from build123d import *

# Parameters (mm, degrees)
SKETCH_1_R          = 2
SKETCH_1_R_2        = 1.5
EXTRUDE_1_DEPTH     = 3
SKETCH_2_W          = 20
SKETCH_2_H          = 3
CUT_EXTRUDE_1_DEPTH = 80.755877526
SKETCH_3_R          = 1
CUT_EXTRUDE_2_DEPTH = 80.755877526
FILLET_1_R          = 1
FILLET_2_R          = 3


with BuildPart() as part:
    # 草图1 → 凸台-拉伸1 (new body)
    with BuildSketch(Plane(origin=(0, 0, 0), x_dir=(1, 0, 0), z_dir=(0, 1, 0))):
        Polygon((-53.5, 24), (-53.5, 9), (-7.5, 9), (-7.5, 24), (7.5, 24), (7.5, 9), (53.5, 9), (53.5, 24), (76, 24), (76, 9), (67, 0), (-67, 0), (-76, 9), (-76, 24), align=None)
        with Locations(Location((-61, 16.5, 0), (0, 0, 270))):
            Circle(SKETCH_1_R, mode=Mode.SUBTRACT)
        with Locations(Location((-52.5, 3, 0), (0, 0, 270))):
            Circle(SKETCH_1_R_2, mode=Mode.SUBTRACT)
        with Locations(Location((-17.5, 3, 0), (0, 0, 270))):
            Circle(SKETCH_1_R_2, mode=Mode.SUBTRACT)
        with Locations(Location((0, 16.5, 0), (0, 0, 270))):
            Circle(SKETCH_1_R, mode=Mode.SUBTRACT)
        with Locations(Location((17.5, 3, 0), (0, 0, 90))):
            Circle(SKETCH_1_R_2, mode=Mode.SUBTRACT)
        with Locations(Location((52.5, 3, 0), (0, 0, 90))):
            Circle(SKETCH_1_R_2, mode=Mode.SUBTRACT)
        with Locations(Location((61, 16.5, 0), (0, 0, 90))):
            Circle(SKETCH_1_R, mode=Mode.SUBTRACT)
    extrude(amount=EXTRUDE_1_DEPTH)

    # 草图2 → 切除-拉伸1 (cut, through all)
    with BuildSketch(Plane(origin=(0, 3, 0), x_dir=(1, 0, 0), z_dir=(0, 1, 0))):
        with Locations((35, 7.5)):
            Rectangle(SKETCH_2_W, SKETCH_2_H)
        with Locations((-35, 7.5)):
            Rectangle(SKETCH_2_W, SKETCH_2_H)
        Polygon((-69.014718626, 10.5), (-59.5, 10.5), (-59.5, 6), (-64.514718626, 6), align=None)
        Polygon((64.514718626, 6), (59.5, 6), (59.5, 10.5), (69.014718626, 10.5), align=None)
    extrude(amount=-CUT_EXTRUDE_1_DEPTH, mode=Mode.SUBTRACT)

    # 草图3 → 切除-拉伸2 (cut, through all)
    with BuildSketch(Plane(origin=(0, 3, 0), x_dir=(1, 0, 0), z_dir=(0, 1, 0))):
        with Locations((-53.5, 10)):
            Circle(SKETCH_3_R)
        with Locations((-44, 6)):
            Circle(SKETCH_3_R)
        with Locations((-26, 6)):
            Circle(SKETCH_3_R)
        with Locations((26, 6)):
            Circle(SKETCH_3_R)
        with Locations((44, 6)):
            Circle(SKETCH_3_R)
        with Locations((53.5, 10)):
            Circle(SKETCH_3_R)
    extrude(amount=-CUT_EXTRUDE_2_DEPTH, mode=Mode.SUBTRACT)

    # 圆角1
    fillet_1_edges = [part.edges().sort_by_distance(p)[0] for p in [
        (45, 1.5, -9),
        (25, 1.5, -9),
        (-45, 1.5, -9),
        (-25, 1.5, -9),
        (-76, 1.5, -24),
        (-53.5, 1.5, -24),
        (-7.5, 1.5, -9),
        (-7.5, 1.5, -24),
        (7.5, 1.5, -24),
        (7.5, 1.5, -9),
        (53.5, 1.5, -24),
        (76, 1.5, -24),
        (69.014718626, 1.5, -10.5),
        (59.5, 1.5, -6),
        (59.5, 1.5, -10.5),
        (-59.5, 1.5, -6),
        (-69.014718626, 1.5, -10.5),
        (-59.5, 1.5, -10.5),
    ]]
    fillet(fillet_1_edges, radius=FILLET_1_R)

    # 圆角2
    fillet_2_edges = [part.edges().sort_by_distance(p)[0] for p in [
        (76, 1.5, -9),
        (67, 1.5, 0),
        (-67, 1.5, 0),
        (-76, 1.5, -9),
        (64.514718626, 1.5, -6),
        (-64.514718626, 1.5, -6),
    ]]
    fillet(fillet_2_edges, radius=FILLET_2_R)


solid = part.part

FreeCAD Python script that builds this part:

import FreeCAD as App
import Part
import Sketcher

V = App.Vector
Q = App.Units.Quantity


def edges_at(feature, points):
    """Names of the edges that pass closest to the given points."""
    edges = feature.Shape.Edges
    near = lambda p: min(range(len(edges)), key=lambda i: edges[i].distToShape(Part.Vertex(*p))[0])
    return sorted({f"Edge{near(p) + 1}" for p in points})

doc = App.newDocument("Part")
body = doc.addObject("PartDesign::Body", "Body")

# Sketch on XZ plane
sketch1 = doc.addObject("Sketcher::SketchObject", "Sketch")
body.addObject(sketch1)
sketch1.AttachmentSupport = (doc.XZ_Plane, [""])
sketch1.MapMode = "FlatFace"
sketch1.addGeometry([
    Part.LineSegment(V(-53.5, -9, 0), V(-53.5, -24, 0)),  # 0
    Part.LineSegment(V(-53.5, -24, 0), V(-76, -24, 0)),  # 1
    Part.LineSegment(V(-76, -24, 0), V(-76, -9, 0)),  # 2
    Part.LineSegment(V(-76, -9, 0), V(-67, 0, 0)),  # 3
    Part.LineSegment(V(-67, 0, 0), V(67, 0, 0)),  # 4
    Part.LineSegment(V(67, 0, 0), V(76, -9, 0)),  # 5
    Part.LineSegment(V(76, -9, 0), V(76, -24, 0)),  # 6
    Part.LineSegment(V(76, -24, 0), V(53.5, -24, 0)),  # 7
    Part.LineSegment(V(53.5, -24, 0), V(53.5, -9, 0)),  # 8
    Part.LineSegment(V(53.5, -9, 0), V(7.5, -9, 0)),  # 9
    Part.LineSegment(V(7.5, -9, 0), V(7.5, -24, 0)),  # 10
    Part.LineSegment(V(7.5, -24, 0), V(-7.5, -24, 0)),  # 11
    Part.LineSegment(V(-7.5, -24, 0), V(-7.5, -9, 0)),  # 12
    Part.LineSegment(V(-7.5, -9, 0), V(-53.5, -9, 0)),  # 13
    Part.Circle(V(52.5, -3, 0), V(0, 0, 1), 1.5),  # 14
    Part.Circle(V(17.5, -3, 0), V(0, 0, 1), 1.5),  # 15
    Part.Circle(V(-17.5, -3, 0), V(0, 0, 1), 1.5),  # 16
    Part.Circle(V(-52.5, -3, 0), V(0, 0, 1), 1.5),  # 17
    Part.Circle(V(61, -16.5, 0), V(0, 0, 1), 2),  # 18
    Part.Circle(V(0, -16.5, 0), V(0, 0, 1), 2),  # 19
    Part.Circle(V(-61, -16.5, 0), V(0, 0, 1), 2),  # 20
], False)
sketch1.addConstraint([
    Sketcher.Constraint("Coincident", 0, 2, 1, 1),
    Sketcher.Constraint("Coincident", 1, 2, 2, 1),
    Sketcher.Constraint("Coincident", 2, 2, 3, 1),
    Sketcher.Constraint("Coincident", 3, 2, 4, 1),
    Sketcher.Constraint("Coincident", 4, 2, 5, 1),
    Sketcher.Constraint("Coincident", 5, 2, 6, 1),
    Sketcher.Constraint("Coincident", 6, 2, 7, 1),
    Sketcher.Constraint("Coincident", 7, 2, 8, 1),
    Sketcher.Constraint("Coincident", 8, 2, 9, 1),
    Sketcher.Constraint("Coincident", 9, 2, 10, 1),
    Sketcher.Constraint("Coincident", 10, 2, 11, 1),
    Sketcher.Constraint("Coincident", 11, 2, 12, 1),
    Sketcher.Constraint("Coincident", 12, 2, 13, 1),
    Sketcher.Constraint("Coincident", 13, 2, 0, 1),
    Sketcher.Constraint("Vertical", 0),
    Sketcher.Constraint("Horizontal", 1),
    Sketcher.Constraint("Vertical", 2),
    Sketcher.Constraint("Horizontal", 4),
    Sketcher.Constraint("Vertical", 6),
    Sketcher.Constraint("Horizontal", 7),
    Sketcher.Constraint("Vertical", 8),
    Sketcher.Constraint("Horizontal", 9),
    Sketcher.Constraint("Vertical", 10),
    Sketcher.Constraint("Horizontal", 11),
    Sketcher.Constraint("Vertical", 12),
    Sketcher.Constraint("Horizontal", 13),
    Sketcher.Constraint("Equal", 14, 15),
    Sketcher.Constraint("Equal", 15, 16),
    Sketcher.Constraint("Equal", 16, 17),
    Sketcher.Constraint("Equal", 18, 19),
    Sketcher.Constraint("Equal", 19, 20),
    Sketcher.Constraint("Symmetric", 3, 2, 4, 2, -1, 1),
    Sketcher.Constraint("Symmetric", 15, 3, 16, 3, -2),
    Sketcher.Constraint("Symmetric", 14, 3, 17, 3, -2),
    Sketcher.Constraint("Symmetric", 18, 3, 20, 3, -2),
    Sketcher.Constraint("Symmetric", 2, 2, 5, 2, -2),
    Sketcher.Constraint("Symmetric", 0, 2, 7, 2, -2),
    Sketcher.Constraint("Symmetric", 9, 2, 12, 2, -2),
    Sketcher.Constraint("PointOnObject", 19, 3, -2),
    Sketcher.Constraint("Perpendicular", 3, 5),
    Sketcher.Constraint("Horizontal", 14, 3, 15, 3),
    Sketcher.Constraint("Horizontal", 18, 3, 19, 3),
    Sketcher.Constraint("Horizontal", 5, 2, 8, 2),
    Sketcher.Constraint("Horizontal", 7, 2, 10, 2),
    Sketcher.Constraint("Equal", 11, 0),
    Sketcher.Constraint("Diameter", 14, Q("3 mm")),
    Sketcher.Constraint("Diameter", 18, Q("4 mm")),
    Sketcher.Constraint("DistanceX", 4, 1, 4, 2, Q("134 mm")),
    Sketcher.Constraint("DistanceX", 9, 2, 9, 1, Q("46 mm")),
    Sketcher.Constraint("DistanceX", 11, 2, 11, 1, Q("15 mm")),
    Sketcher.Constraint("DistanceX", 1, 2, 1, 1, Q("22.5 mm")),
    Sketcher.Constraint("DistanceY", 14, 3, -1, 1, Q("3 mm")),
    Sketcher.Constraint("DistanceX", -1, 1, 18, 3, Q("61 mm")),
    Sketcher.Constraint("DistanceX", 15, 3, 14, 3, Q("35 mm")),
    Sketcher.Constraint("DistanceX", 16, 3, 15, 3, Q("35 mm")),
    Sketcher.Constraint("DistanceY", 18, 3, -1, 1, Q("16.5 mm")),
])
pad1 = doc.addObject("PartDesign::Pad", "Pad")
body.addObject(pad1)
pad1.Profile = sketch1
pad1.Length = 3
pad1.Reversed = True

# Sketch on XZ plane
sketch2 = doc.addObject("Sketcher::SketchObject", "Sketch001")
body.addObject(sketch2)
sketch2.AttachmentSupport = (doc.XZ_Plane, [""])
sketch2.MapMode = "FlatFace"
sketch2.AttachmentOffset = App.Placement(V(0, 0, -3), App.Rotation())
sketch2.addGeometry([
    Part.LineSegment(V(25, -9, 0), V(25, -6, 0)),  # 0
    Part.LineSegment(V(25, -6, 0), V(45, -6, 0)),  # 1
    Part.LineSegment(V(45, -6, 0), V(45, -9, 0)),  # 2
    Part.LineSegment(V(45, -9, 0), V(25, -9, 0)),  # 3
    Part.LineSegment(V(-45, -9, 0), V(-45, -6, 0)),  # 4
    Part.LineSegment(V(-45, -6, 0), V(-25, -6, 0)),  # 5
    Part.LineSegment(V(-25, -6, 0), V(-25, -9, 0)),  # 6
    Part.LineSegment(V(-25, -9, 0), V(-45, -9, 0)),  # 7
    Part.LineSegment(V(-59.5, -10.5, 0), V(-69, -10.5, 0)),  # 8
    Part.LineSegment(V(-69, -10.5, 0), V(-64.5, -6, 0)),  # 9
    Part.LineSegment(V(-64.5, -6, 0), V(-59.5, -6, 0)),  # 10
    Part.LineSegment(V(-59.5, -6, 0), V(-59.5, -10.5, 0)),  # 11
    Part.LineSegment(V(59.5, -6, 0), V(64.5, -6, 0)),  # 12
    Part.LineSegment(V(64.5, -6, 0), V(69, -10.5, 0)),  # 13
    Part.LineSegment(V(69, -10.5, 0), V(59.5, -10.5, 0)),  # 14
    Part.LineSegment(V(59.5, -10.5, 0), V(59.5, -6, 0)),  # 15
], False)
sketch2.addConstraint([
    Sketcher.Constraint("Coincident", 0, 2, 1, 1),
    Sketcher.Constraint("Coincident", 1, 2, 2, 1),
    Sketcher.Constraint("Coincident", 2, 2, 3, 1),
    Sketcher.Constraint("Coincident", 3, 2, 0, 1),
    Sketcher.Constraint("Coincident", 4, 2, 5, 1),
    Sketcher.Constraint("Coincident", 5, 2, 6, 1),
    Sketcher.Constraint("Coincident", 6, 2, 7, 1),
    Sketcher.Constraint("Coincident", 7, 2, 4, 1),
    Sketcher.Constraint("Coincident", 8, 2, 9, 1),
    Sketcher.Constraint("Coincident", 9, 2, 10, 1),
    Sketcher.Constraint("Coincident", 10, 2, 11, 1),
    Sketcher.Constraint("Coincident", 11, 2, 8, 1),
    Sketcher.Constraint("Coincident", 12, 2, 13, 1),
    Sketcher.Constraint("Coincident", 13, 2, 14, 1),
    Sketcher.Constraint("Coincident", 14, 2, 15, 1),
    Sketcher.Constraint("Coincident", 15, 2, 12, 1),
    Sketcher.Constraint("Vertical", 0),
    Sketcher.Constraint("Horizontal", 1),
    Sketcher.Constraint("Vertical", 2),
    Sketcher.Constraint("Horizontal", 3),
    Sketcher.Constraint("Vertical", 4),
    Sketcher.Constraint("Horizontal", 5),
    Sketcher.Constraint("Vertical", 6),
    Sketcher.Constraint("Horizontal", 7),
    Sketcher.Constraint("Horizontal", 8),
    Sketcher.Constraint("Horizontal", 10),
    Sketcher.Constraint("Vertical", 11),
    Sketcher.Constraint("Horizontal", 12),
    Sketcher.Constraint("Horizontal", 14),
    Sketcher.Constraint("Vertical", 15),
    Sketcher.Constraint("Symmetric", 1, 2, 4, 2, -2),
    Sketcher.Constraint("Symmetric", 3, 2, 6, 2, -2),
    Sketcher.Constraint("Symmetric", 9, 2, 12, 2, -2),
    Sketcher.Constraint("Symmetric", 8, 2, 13, 2, -2),
    Sketcher.Constraint("Perpendicular", 9, 13),
    Sketcher.Constraint("Horizontal", 5, 2, 9, 2),
    Sketcher.Constraint("Equal", 10, 12),
    Sketcher.Constraint("DistanceX", 1, 1, 1, 2, Q("20 mm")),
    Sketcher.Constraint("DistanceY", 0, 1, 0, 2, Q("3 mm")),
    Sketcher.Constraint("DistanceY", 11, 2, 11, 1, Q("4.5 mm")),
    Sketcher.Constraint("DistanceX", -1, 1, 0, 2, Q("25 mm")),
    Sketcher.Constraint("DistanceY", 0, 2, -1, 1, Q("6 mm")),
    Sketcher.Constraint("DistanceX", 10, 2, -1, 1, Q("59.5 mm")),
    Sketcher.Constraint("DistanceX", 8, 2, 8, 1, Q("9.514719 mm")),
])
pocket1 = doc.addObject("PartDesign::Pocket", "Pocket")
body.addObject(pocket1)
pocket1.Profile = sketch2
pocket1.Type = "ThroughAll"
pocket1.Reversed = True

# Sketch on XZ plane
sketch3 = doc.addObject("Sketcher::SketchObject", "Sketch002")
body.addObject(sketch3)
sketch3.AttachmentSupport = (doc.XZ_Plane, [""])
sketch3.MapMode = "FlatFace"
sketch3.AttachmentOffset = App.Placement(V(0, 0, -3), App.Rotation())
sketch3.addGeometry([
    Part.Circle(V(-53.5, -10, 0), V(0, 0, 1), 1),  # 0
    Part.Circle(V(-44, -6, 0), V(0, 0, 1), 1),  # 1
    Part.Circle(V(-26, -6, 0), V(0, 0, 1), 1),  # 2
    Part.Circle(V(26, -6, 0), V(0, 0, 1), 1),  # 3
    Part.Circle(V(44, -6, 0), V(0, 0, 1), 1),  # 4
    Part.Circle(V(53.5, -10, 0), V(0, 0, 1), 1),  # 5
], False)
sketch3.addConstraint([
    Sketcher.Constraint("Equal", 0, 1),
    Sketcher.Constraint("Equal", 1, 2),
    Sketcher.Constraint("Equal", 2, 3),
    Sketcher.Constraint("Equal", 3, 4),
    Sketcher.Constraint("Equal", 4, 5),
    Sketcher.Constraint("Symmetric", 2, 3, 3, 3, -2),
    Sketcher.Constraint("Symmetric", 1, 3, 4, 3, -2),
    Sketcher.Constraint("Symmetric", 0, 3, 5, 3, -2),
    Sketcher.Constraint("Horizontal", 1, 3, 2, 3),
    Sketcher.Constraint("Diameter", 0, Q("2 mm")),
    Sketcher.Constraint("DistanceY", 0, 3, -1, 1, Q("10 mm")),
    Sketcher.Constraint("DistanceX", 1, 3, -1, 1, Q("44 mm")),
    Sketcher.Constraint("DistanceY", 1, 3, -1, 1, Q("6 mm")),
    Sketcher.Constraint("DistanceX", 2, 3, -1, 1, Q("26 mm")),
    Sketcher.Constraint("DistanceX", 0, 3, 5, 3, Q("107 mm")),
])
pocket2 = doc.addObject("PartDesign::Pocket", "Pocket001")
body.addObject(pocket2)
pocket2.Profile = sketch3
pocket2.Type = "ThroughAll"
pocket2.Reversed = True
doc.recompute()

fillet = doc.addObject("PartDesign::Fillet", "Fillet")
body.addObject(fillet)
fillet.Base = (pocket2, edges_at(pocket2, [
    (45, 1.5, -9),
    (25, 1.5, -9),
    (-45, 1.5, -9),
    (-25, 1.5, -9),
    (-76, 1.5, -24),
    (-53.5, 1.5, -24),
    (-7.5, 1.5, -9),
    (-7.5, 1.5, -24),
    (7.5, 1.5, -24),
    (7.5, 1.5, -9),
    (53.5, 1.5, -24),
    (76, 1.5, -24),
    (69.015, 1.5, -10.5),
    (59.5, 1.5, -6),
    (59.5, 1.5, -10.5),
    (-59.5, 1.5, -6),
    (-69.015, 1.5, -10.5),
    (-59.5, 1.5, -10.5),
]))
fillet.Radius = 1
doc.recompute()

fillet2 = doc.addObject("PartDesign::Fillet", "Fillet001")
body.addObject(fillet2)
fillet2.Base = (fillet, edges_at(fillet, [
    (76, 1.5, -9),
    (67, 1.5, 0),
    (-67, 1.5, 0),
    (-76, 1.5, -9),
    (64.515, 1.5, -6),
    (-64.515, 1.5, -6),
]))
fillet2.Radius = 3

doc.recompute()
